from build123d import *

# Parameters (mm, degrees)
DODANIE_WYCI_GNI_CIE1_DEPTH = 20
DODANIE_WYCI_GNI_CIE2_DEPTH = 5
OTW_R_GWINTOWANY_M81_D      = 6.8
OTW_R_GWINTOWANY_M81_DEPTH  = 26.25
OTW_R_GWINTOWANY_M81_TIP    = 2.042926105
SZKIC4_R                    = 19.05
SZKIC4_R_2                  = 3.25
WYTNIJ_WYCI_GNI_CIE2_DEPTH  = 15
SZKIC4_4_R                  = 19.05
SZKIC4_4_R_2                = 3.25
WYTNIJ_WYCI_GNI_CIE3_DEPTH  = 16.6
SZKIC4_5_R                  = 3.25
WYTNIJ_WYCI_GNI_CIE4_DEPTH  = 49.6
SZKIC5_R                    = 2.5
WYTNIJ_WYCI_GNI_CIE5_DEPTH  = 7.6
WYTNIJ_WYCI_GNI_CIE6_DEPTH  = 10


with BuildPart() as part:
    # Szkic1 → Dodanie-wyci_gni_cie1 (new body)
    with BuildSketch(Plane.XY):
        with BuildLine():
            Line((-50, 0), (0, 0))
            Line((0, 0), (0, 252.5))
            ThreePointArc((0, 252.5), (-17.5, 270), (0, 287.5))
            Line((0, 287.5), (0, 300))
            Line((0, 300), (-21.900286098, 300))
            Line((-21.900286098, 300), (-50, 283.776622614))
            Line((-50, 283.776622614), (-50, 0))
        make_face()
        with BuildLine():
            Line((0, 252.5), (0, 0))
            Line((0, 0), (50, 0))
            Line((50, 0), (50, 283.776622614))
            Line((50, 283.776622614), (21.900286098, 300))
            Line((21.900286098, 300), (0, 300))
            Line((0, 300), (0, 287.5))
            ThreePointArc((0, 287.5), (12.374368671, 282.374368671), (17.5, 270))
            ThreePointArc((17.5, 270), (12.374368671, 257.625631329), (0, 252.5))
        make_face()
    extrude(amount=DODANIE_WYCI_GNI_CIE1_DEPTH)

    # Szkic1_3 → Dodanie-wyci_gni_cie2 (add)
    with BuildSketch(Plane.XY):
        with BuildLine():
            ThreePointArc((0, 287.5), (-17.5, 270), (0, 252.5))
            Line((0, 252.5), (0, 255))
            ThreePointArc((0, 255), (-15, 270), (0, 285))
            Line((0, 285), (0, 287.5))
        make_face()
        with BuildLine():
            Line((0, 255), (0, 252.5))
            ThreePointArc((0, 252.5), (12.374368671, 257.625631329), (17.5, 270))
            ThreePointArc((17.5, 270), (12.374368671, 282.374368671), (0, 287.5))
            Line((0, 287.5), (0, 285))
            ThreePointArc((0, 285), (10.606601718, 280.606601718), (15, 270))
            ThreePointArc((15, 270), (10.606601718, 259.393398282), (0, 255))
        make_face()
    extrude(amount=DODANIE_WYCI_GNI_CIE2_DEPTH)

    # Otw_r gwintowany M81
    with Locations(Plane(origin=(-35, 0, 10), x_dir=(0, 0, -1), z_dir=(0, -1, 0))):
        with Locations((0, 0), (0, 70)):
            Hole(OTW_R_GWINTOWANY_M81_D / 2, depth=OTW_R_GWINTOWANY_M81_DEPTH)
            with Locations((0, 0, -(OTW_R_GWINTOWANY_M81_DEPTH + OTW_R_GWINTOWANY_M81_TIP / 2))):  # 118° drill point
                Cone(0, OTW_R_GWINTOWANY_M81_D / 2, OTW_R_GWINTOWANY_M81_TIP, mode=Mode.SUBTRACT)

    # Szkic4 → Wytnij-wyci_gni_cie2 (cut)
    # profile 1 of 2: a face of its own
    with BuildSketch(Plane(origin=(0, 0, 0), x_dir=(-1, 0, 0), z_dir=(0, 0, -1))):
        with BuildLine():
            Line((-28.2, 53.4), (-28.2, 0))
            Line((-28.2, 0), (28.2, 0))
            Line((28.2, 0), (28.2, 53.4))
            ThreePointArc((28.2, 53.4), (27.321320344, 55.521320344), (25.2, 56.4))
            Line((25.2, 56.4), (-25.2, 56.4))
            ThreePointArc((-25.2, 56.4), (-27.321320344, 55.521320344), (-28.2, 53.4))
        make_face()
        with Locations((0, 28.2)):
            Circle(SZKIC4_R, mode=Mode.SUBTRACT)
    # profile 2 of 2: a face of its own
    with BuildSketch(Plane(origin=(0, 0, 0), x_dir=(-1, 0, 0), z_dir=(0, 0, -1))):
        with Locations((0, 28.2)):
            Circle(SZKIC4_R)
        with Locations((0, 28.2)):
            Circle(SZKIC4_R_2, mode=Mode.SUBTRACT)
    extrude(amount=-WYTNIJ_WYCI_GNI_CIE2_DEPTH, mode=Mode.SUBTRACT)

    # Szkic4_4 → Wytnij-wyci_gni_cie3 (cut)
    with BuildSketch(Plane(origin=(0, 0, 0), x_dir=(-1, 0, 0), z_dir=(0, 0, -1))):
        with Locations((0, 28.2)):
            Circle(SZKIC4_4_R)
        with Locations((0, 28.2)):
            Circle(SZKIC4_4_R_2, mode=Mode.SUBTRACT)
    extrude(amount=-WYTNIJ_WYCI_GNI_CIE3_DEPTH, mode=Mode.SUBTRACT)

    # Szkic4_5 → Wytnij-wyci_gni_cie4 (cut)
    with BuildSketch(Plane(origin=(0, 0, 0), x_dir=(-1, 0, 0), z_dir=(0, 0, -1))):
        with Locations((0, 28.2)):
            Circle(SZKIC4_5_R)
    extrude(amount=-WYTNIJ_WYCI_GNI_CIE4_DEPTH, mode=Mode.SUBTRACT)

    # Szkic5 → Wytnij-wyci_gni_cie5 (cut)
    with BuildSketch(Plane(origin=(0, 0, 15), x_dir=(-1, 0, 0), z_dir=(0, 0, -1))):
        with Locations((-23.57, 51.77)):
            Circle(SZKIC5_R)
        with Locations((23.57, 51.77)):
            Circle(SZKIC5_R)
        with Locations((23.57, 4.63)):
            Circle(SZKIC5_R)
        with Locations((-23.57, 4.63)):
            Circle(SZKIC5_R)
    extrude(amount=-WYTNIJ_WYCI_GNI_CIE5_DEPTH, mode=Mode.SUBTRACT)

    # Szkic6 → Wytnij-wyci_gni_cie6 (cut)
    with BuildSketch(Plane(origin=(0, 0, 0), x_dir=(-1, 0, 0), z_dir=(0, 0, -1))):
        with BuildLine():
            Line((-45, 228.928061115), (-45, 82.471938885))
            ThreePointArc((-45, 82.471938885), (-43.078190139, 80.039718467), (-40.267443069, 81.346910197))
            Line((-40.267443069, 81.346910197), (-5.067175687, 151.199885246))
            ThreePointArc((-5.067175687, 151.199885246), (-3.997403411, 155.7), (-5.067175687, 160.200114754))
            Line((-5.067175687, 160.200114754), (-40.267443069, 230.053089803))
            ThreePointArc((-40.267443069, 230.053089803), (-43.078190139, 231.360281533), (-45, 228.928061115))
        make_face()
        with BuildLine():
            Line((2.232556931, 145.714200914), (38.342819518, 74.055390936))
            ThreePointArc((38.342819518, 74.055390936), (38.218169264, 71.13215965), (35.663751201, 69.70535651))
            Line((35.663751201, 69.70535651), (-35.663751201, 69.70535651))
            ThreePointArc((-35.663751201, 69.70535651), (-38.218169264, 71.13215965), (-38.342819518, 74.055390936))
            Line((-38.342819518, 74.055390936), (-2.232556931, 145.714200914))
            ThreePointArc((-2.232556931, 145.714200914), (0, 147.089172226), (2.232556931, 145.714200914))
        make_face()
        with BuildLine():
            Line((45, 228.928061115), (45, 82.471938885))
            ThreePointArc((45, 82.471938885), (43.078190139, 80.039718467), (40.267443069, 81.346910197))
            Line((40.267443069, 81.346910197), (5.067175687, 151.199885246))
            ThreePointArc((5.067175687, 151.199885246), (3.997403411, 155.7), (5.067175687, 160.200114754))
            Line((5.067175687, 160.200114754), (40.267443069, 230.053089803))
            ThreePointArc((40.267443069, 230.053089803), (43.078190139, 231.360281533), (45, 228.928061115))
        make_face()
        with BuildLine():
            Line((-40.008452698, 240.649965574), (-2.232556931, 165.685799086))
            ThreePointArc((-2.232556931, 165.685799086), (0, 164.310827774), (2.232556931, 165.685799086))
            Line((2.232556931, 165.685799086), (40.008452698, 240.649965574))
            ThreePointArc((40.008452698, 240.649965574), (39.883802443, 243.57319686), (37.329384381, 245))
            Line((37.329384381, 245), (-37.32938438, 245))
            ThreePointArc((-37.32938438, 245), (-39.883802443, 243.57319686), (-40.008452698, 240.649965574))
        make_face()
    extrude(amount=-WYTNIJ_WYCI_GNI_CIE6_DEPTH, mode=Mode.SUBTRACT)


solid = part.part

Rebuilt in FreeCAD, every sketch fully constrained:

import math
import FreeCAD as App
import Part
import Sketcher
from FreeCAD import Vector
Q = App.Units.Quantity


def add_polygon(sketch, points):
    """Adds a closed chain of lines whose ends are joined by coincident constraints."""
    first, n = sketch.GeometryCount, len(points)
    for a, b in zip(points, points[1:] + points[:1]):
        sketch.addGeometry(Part.LineSegment(App.Vector(*a, 0), App.Vector(*b, 0)), False)
    for i in range(n):
        sketch.addConstraint(Sketcher.Constraint("Coincident", first + i, 2, first + (i + 1) % n, 1))

doc = App.newDocument("Part")
body = doc.addObject("PartDesign::Body", "Body")

# Sketch on XY plane
sketch1 = body.newObject("Sketcher::SketchObject", "Sketch")
sketch1.AttachmentSupport = (doc.getObject("XY_Plane"), [""])
sketch1.MapMode = "FlatFace"
add_polygon(sketch1, [(-50, 0), (50, 0), (50, 284), (22, 300), (-22, 300), (-50, 284)])  # lines 0-5
sketch1.addGeometry(Part.ArcOfCircle(Part.Circle(Vector(0, 270, 0), Vector(0, 0, 1), 18), math.radians(90), math.radians(270)), False)  # 6
sketch1.addGeometry(Part.ArcOfCircle(Part.Circle(Vector(0, 270, 0), Vector(0, 0, 1), 17), math.radians(0), math.radians(90)), False)  # 7
sketch1.addGeometry(Part.ArcOfCircle(Part.Circle(Vector(0, 270, 0), Vector(0, 0, 1), 17), math.radians(-90), math.radians(0)), False)  # 8
sketch1.addConstraint([
    Sketcher.Constraint("Tangent", 6, 1, 7, 2),
    Sketcher.Constraint("Tangent", 7, 1, 8, 2),
    Sketcher.Constraint("Tangent", 8, 1, 6, 2),
    Sketcher.Constraint("Horizontal", 0),
    Sketcher.Constraint("Vertical", 1),
    Sketcher.Constraint("Horizontal", 3),
    Sketcher.Constraint("Vertical", 5),
    Sketcher.Constraint("Symmetric", 0, 2, 5, 2, -1, 1),
    Sketcher.Constraint("PointOnObject", 6, 3, -2),
    Sketcher.Constraint("PointOnObject", 6, 1, -2),
    Sketcher.Constraint("PointOnObject", 8, 1, -2),
    Sketcher.Constraint("Horizontal", 1, 2, 4, 2),
    Sketcher.Constraint("Horizontal", 8, 3, 7, 1),
    Sketcher.Constraint("Equal", 2, 4),
    Sketcher.Constraint("Radius", 6, Q("17.5 mm")),
    Sketcher.Constraint("DistanceX", 0, 1, 0, 2, Q("100 mm")),
    Sketcher.Constraint("Angle", 2, Q("150 deg")),
    Sketcher.Constraint("DistanceY", -1, 1, 6, 3, Q("270 mm")),
    Sketcher.Constraint("DistanceY", -1, 1, 2, 2, Q("300 mm")),
    Sketcher.Constraint("DistanceX", 3, 2, 3, 1, Q("43.800572 mm")),
])
pad1 = body.newObject("PartDesign::Pad", "Pad")
pad1.Profile = sketch1
pad1.Length = 20

# Sketch on XY plane
sketch2 = body.newObject("Sketcher::SketchObject", "Sketch001")
sketch2.AttachmentSupport = (doc.getObject("XY_Plane"), [""])
sketch2.MapMode = "FlatFace"
sketch2.addGeometry([
    Part.ArcOfCircle(Part.Circle(Vector(0, 270, 0), Vector(0, 0, 1), 18), math.radians(90), math.radians(270)),  # 0
    Part.ArcOfCircle(Part.Circle(Vector(0, 270, 0), Vector(0, 0, 1), 17), math.radians(-90), math.radians(0)),  # 1
    Part.ArcOfCircle(Part.Circle(Vector(0, 270, 0), Vector(0, 0, 1), 17), math.radians(0), math.radians(90)),  # 2
    Part.ArcOfCircle(Part.Circle(Vector(0, 270, 0), Vector(0, 0, 1), 15), math.radians(90), math.radians(270)),  # 3
    Part.ArcOfCircle(Part.Circle(Vector(0, 270, 0), Vector(0, 0, 1), 15), math.radians(0), math.radians(90)),  # 4
    Part.ArcOfCircle(Part.Circle(Vector(0, 270, 0), Vector(0, 0, 1), 15), math.radians(-90), math.radians(0)),  # 5
], False)
sketch2.addConstraint([
    Sketcher.Constraint("Tangent", 0, 2, 1, 1),
    Sketcher.Constraint("Tangent", 1, 2, 2, 1),
    Sketcher.Constraint("Tangent", 2, 2, 0, 1),
    Sketcher.Constraint("Tangent", 3, 1, 4, 2),
    Sketcher.Constraint("Tangent", 4, 1, 5, 2),
    Sketcher.Constraint("Tangent", 5, 1, 3, 2),
    Sketcher.Constraint("Coincident", 3, 3, 0, 3),
    Sketcher.Constraint("PointOnObject", 0, 3, -2),
    Sketcher.Constraint("PointOnObject", 0, 2, -2),
    Sketcher.Constraint("PointOnObject", 2, 2, -2),
    Sketcher.Constraint("PointOnObject", 3, 1, -2),
    Sketcher.Constraint("PointOnObject", 5, 1, -2),
    Sketcher.Constraint("Horizontal", 5, 3, 1, 2),
    Sketcher.Constraint("Horizontal", 1, 2, 4, 1),
    Sketcher.Constraint("Radius", 3, Q("15 mm")),
    Sketcher.Constraint("Radius", 0, Q("17.5 mm")),
    Sketcher.Constraint("DistanceY", -1, 1, 0, 3, Q("270 mm")),
])
pad2 = body.newObject("PartDesign::Pad", "Pad001")
pad2.Profile = sketch2
pad2.Length = 5

# Sketch on XZ plane
sketch3 = body.newObject("Sketcher::SketchObject", "Sketch002")
sketch3.AttachmentSupport = (doc.getObject("XZ_Plane"), [""])
sketch3.MapMode = "FlatFace"
sketch3.addGeometry([
    Part.Circle(Vector(-35, 10, 0), Vector(0, 0, 1), 3.4),
    Part.Circle(Vector(35, 10, 0), Vector(0, 0, 1), 3.4),
], False)
sketch3.addConstraint([
    Sketcher.Constraint("Equal", 0, 1),
    Sketcher.Constraint("Symmetric", 0, 3, 1, 3, -2),
    Sketcher.Constraint("Diameter", 0, Q("6.8 mm")),
    Sketcher.Constraint("DistanceX", 0, 3, -1, 1, Q("35 mm")),
    Sketcher.Constraint("DistanceY", -1, 1, 0, 3, Q("10 mm")),
])
doc.recompute()
hole = body.newObject("PartDesign::Hole", "Hole")
hole.Profile = sketch3
hole.ThreadType = "None"
hole.Diameter = 6.8
hole.DepthType = "Dimension"
hole.Depth = 26.25
hole.DrillPoint = "Angled"
hole.DrillPointAngle = 118

# Sketch on XY plane
sketch4 = body.newObject("Sketcher::SketchObject", "Sketch003")
sketch4.AttachmentSupport = (doc.getObject("XY_Plane"), [""])
sketch4.MapMode = "FlatFace"
sketch4.addGeometry([
    Part.LineSegment(Vector(28.2, 53.4, 0), Vector(28.2, 0, 0)),  # 0
    Part.LineSegment(Vector(28.2, 0, 0), Vector(-28.2, 0, 0)),  # 1
    Part.LineSegment(Vector(-28.2, 0, 0), Vector(-28.2, 53.4, 0)),  # 2
    Part.ArcOfCircle(Part.Circle(Vector(-25.2, 53.4, 0), Vector(0, 0, 1), 3), math.radians(90), math.radians(180)),  # 3
    Part.LineSegment(Vector(-25.2, 56.4, 0), Vector(25.2, 56.4, 0)),  # 4
    Part.ArcOfCircle(Part.Circle(Vector(25.2, 53.4, 0), Vector(0, 0, 1), 3), math.radians(0), math.radians(90)),  # 5
    Part.Circle(Vector(0, 28.2, 0), Vector(0, 0, 1), 3.2),  # 6
], False)
sketch4.addConstraint([
    Sketcher.Constraint("Coincident", 0, 2, 1, 1),
    Sketcher.Constraint("Coincident", 1, 2, 2, 1),
    Sketcher.Constraint("Tangent", 2, 2, 3, 2),
    Sketcher.Constraint("Tangent", 3, 1, 4, 1),
    Sketcher.Constraint("Tangent", 4, 2, 5, 2),
    Sketcher.Constraint("Tangent", 5, 1, 0, 1),
    Sketcher.Constraint("Vertical", 0),
    Sketcher.Constraint("Horizontal", 1),
    Sketcher.Constraint("Vertical", 2),
    Sketcher.Constraint("Horizontal", 4),
    Sketcher.Constraint("Equal", 3, 5),
    Sketcher.Constraint("Symmetric", 0, 2, 1, 2, -1, 1),
    Sketcher.Constraint("PointOnObject", 6, 3, -2),
    Sketcher.Constraint("Radius", 3, Q("3 mm")),
    Sketcher.Constraint("Diameter", 6, Q("6.5 mm")),
    Sketcher.Constraint("DistanceX", 1, 2, 1, 1, Q("56.4 mm")),
    Sketcher.Constraint("DistanceY", 0, 2, 0, 1, Q("53.4 mm")),
    Sketcher.Constraint("DistanceY", -1, 1, 6, 3, Q("28.2 mm")),
])
pocket1 = body.newObject("PartDesign::Pocket", "Pocket")
pocket1.Profile = sketch4
pocket1.Length = 15
pocket1.Reversed = True

# Sketch on XY plane
sketch5 = body.newObject("Sketcher::SketchObject", "Sketch004")
sketch5.AttachmentSupport = (doc.getObject("XY_Plane"), [""])
sketch5.MapMode = "FlatFace"
sketch5.addGeometry([
    Part.Circle(Vector(0, 28.2, 0), Vector(0, 0, 1), 19.1),
    Part.Circle(Vector(0, 28.2, 0), Vector(0, 0, 1), 3.2),
], False)
sketch5.addConstraint([
    Sketcher.Constraint("Coincident", 1, 3, 0, 3),
    Sketcher.Constraint("PointOnObject", 0, 3, -2),
    Sketcher.Constraint("Diameter", 0, Q("38.1 mm")),
    Sketcher.Constraint("Diameter", 1, Q("6.5 mm")),
    Sketcher.Constraint("DistanceY", -1, 1, 0, 3, Q("28.2 mm")),
])
pocket2 = body.newObject("PartDesign::Pocket", "Pocket001")
pocket2.Profile = sketch5
pocket2.Length = 16.6
pocket2.Reversed = True

# Sketch on XY plane
sketch6 = body.newObject("Sketcher::SketchObject", "Sketch005")
sketch6.AttachmentSupport = (doc.getObject("XY_Plane"), [""])
sketch6.MapMode = "FlatFace"
sketch6.addGeometry(Part.Circle(Vector(0, 28.2, 0), Vector(0, 0, 1), 3.2), False)
sketch6.addConstraint([
    Sketcher.Constraint("PointOnObject", 0, 3, -2),
    Sketcher.Constraint("Diameter", 0, Q("6.5 mm")),
    Sketcher.Constraint("DistanceY", -1, 1, 0, 3, Q("28.2 mm")),
])
pocket3 = body.newObject("PartDesign::Pocket", "Pocket002")
pocket3.Profile = sketch6
pocket3.Length = 49.6
pocket3.Reversed = True

# Sketch on XY plane
sketch7 = body.newObject("Sketcher::SketchObject", "Sketch006")
sketch7.AttachmentSupport = (doc.getObject("XY_Plane"), [""])
sketch7.MapMode = "FlatFace"
sketch7.AttachmentOffset = App.Placement(Vector(0, 0, 15), App.Rotation())
sketch7.addGeometry([
    Part.Circle(Vector(23.6, 51.8, 0), Vector(0, 0, 1), 2.5),
    Part.Circle(Vector(-23.6, 51.8, 0), Vector(0, 0, 1), 2.5),
    Part.Circle(Vector(-23.6, 4.6, 0), Vector(0, 0, 1), 2.5),
    Part.Circle(Vector(23.6, 4.6, 0), Vector(0, 0, 1), 2.5),
], False)
sketch7.addConstraint([
    Sketcher.Constraint("Equal", 0, 1),
    Sketcher.Constraint("Equal", 1, 2),
    Sketcher.Constraint("Equal", 2, 3),
    Sketcher.Constraint("Symmetric", 0, 3, 1, 3, -2),
    Sketcher.Constraint("Symmetric", 2, 3, 3, 3, -2),
    Sketcher.Constraint("Vertical", 1, 3, 2, 3),
    Sketcher.Constraint("Diameter", 0, Q("5 mm")),
    Sketcher.Constraint("DistanceX", -1, 1, 0, 3, Q("23.57 mm")),
    Sketcher.Constraint("DistanceY", -1, 1, 0, 3, Q("51.77 mm")),
    Sketcher.Constraint("DistanceY", -1, 1, 2, 3, Q("4.63 mm")),
])
pocket4 = body.newObject("PartDesign::Pocket", "Pocket003")
pocket4.Profile = sketch7
pocket4.Length = 7.6
pocket4.Reversed = True

# Sketch on XY plane
sketch8 = body.newObject("Sketcher::SketchObject", "Sketch007")
sketch8.AttachmentSupport = (doc.getObject("XY_Plane"), [""])
sketch8.MapMode = "FlatFace"
sketch8.addGeometry([
    Part.LineSegment(Vector(45, 228.9, 0), Vector(45, 82.5, 0)),  # 0
    Part.ArcOfCircle(Part.Circle(Vector(42.5, 82.5, 0), Vector(0, 0, 1), 2.5), math.radians(-153), math.radians(0)),  # 1
    Part.LineSegment(Vector(40.3, 81.3, 0), Vector(5.1, 151.2, 0)),  # 2
    Part.ArcOfCircle(Part.Circle(Vector(14, 155.7, 0), Vector(0, 0, 1), 10), math.radians(153), math.radians(207)),  # 3
    Part.LineSegment(Vector(5.1, 160.2, 0), Vector(40.3, 230.1, 0)),  # 4
    Part.ArcOfCircle(Part.Circle(Vector(42.5, 228.9, 0), Vector(0, 0, 1), 2.5), math.radians(0), math.radians(153)),  # 5
    Part.LineSegment(Vector(-38.3, 74.1, 0), Vector(-2.2, 145.7, 0)),  # 6
    Part.ArcOfCircle(Part.Circle(Vector(0, 144.6, 0), Vector(0, 0, 1), 2.5), math.radians(27), math.radians(153)),  # 7
    Part.LineSegment(Vector(2.2, 145.7, 0), Vector(38.3, 74.1, 0)),  # 8
    Part.ArcOfCircle(Part.Circle(Vector(35.7, 72.7, 0), Vector(0, 0, 1), 3), math.radians(-90), math.radians(27)),  # 9
    Part.LineSegment(Vector(35.7, 69.7, 0), Vector(-35.7, 69.7, 0)),  # 10
    Part.ArcOfCircle(Part.Circle(Vector(-35.7, 72.7, 0), Vector(0, 0, 1), 3), math.radians(153), math.radians(270)),  # 11
    Part.LineSegment(Vector(-45, 82.5, 0), Vector(-45, 228.9, 0)),  # 12
    Part.ArcOfCircle(Part.Circle(Vector(-42.5, 228.9, 0), Vector(0, 0, 1), 2.5), math.radians(27), math.radians(180)),  # 13
    Part.LineSegment(Vector(-40.3, 230.1, 0), Vector(-5.1, 160.2, 0)),  # 14
    Part.ArcOfCircle(Part.Circle(Vector(-14, 155.7, 0), Vector(0, 0, 1), 10), math.radians(-27), math.radians(27)),  # 15
    Part.LineSegment(Vector(-5.1, 151.2, 0), Vector(-40.3, 81.3, 0)),  # 16
    Part.ArcOfCircle(Part.Circle(Vector(-42.5, 82.5, 0), Vector(0, 0, 1), 2.5), math.radians(180), math.radians(333)),  # 17
    Part.LineSegment(Vector(40, 240.6, 0), Vector(2.2, 165.7, 0)),  # 18
    Part.ArcOfCircle(Part.Circle(Vector(0, 166.8, 0), Vector(0, 0, 1), 2.5), math.radians(-153), math.radians(-27)),  # 19
    Part.LineSegment(Vector(-2.2, 165.7, 0), Vector(-40, 240.6, 0)),  # 20
    Part.ArcOfCircle(Part.Circle(Vector(-37.3, 242, 0), Vector(0, 0, 1), 3), math.radians(90), math.radians(207)),  # 21
    Part.LineSegment(Vector(-37.3, 245, 0), Vector(37.3, 245, 0)),  # 22
    Part.ArcOfCircle(Part.Circle(Vector(37.3, 242, 0), Vector(0, 0, 1), 3), math.radians(-27), math.radians(90)),  # 23
], False)
sketch8.addConstraint([
    Sketcher.Constraint("Tangent", 0, 2, 1, 2),
    Sketcher.Constraint("Tangent", 1, 1, 2, 1),
    Sketcher.Constraint("Tangent", 2, 2, 3, 2),
    Sketcher.Constraint("Tangent", 3, 1, 4, 1),
    Sketcher.Constraint("Tangent", 4, 2, 5, 2),
    Sketcher.Constraint("Tangent", 5, 1, 0, 1),
    Sketcher.Constraint("Tangent", 6, 2, 7, 2),
    Sketcher.Constraint("Tangent", 7, 1, 8, 1),
    Sketcher.Constraint("Tangent", 8, 2, 9, 2),
    Sketcher.Constraint("Tangent", 9, 1, 10, 1),
    Sketcher.Constraint("Tangent", 10, 2, 11, 2),
    Sketcher.Constraint("Tangent", 11, 1, 6, 1),
    Sketcher.Constraint("Tangent", 12, 2, 13, 2),
    Sketcher.Constraint("Tangent", 13, 1, 14, 1),
    Sketcher.Constraint("Tangent", 14, 2, 15, 2),
    Sketcher.Constraint("Tangent", 15, 1, 16, 1),
    Sketcher.Constraint("Tangent", 16, 2, 17, 2),
    Sketcher.Constraint("Tangent", 17, 1, 12, 1),
    Sketcher.Constraint("Tangent", 18, 2, 19, 2),
    Sketcher.Constraint("Tangent", 19, 1, 20, 1),
    Sketcher.Constraint("Tangent", 20, 2, 21, 2),
    Sketcher.Constraint("Tangent", 21, 1, 22, 1),
    Sketcher.Constraint("Tangent", 22, 2, 23, 2),
    Sketcher.Constraint("Tangent", 23, 1, 18, 1),
    Sketcher.Constraint("Vertical", 0),
    Sketcher.Constraint("Horizontal", 10),
    Sketcher.Constraint("Vertical", 12),
    Sketcher.Constraint("Horizontal", 22),
    Sketcher.Constraint("Equal", 1, 5),
    Sketcher.Constraint("Equal", 5, 7),
    Sketcher.Constraint("Equal", 9, 11),
    Sketcher.Constraint("Equal", 7, 13),
    Sketcher.Constraint("Equal", 3, 15),
    Sketcher.Constraint("Equal", 13, 17),
    Sketcher.Constraint("Equal", 17, 19),
    Sketcher.Constraint("Equal", 11, 21),
    Sketcher.Constraint("Equal", 21, 23),
    Sketcher.Constraint("Symmetric", 5, 3, 13, 3, -2),
    Sketcher.Constraint("Symmetric", 3, 3, 15, 3, -2),
    Sketcher.Constraint("Symmetric", 6, 2, 7, 1, -2),
    Sketcher.Constraint("Symmetric", 18, 2, 19, 1, -2),
    Sketcher.Constraint("Parallel", 4, 6),
    Sketcher.Constraint("Parallel", 2, 8),
    Sketcher.Constraint("Parallel", 6, 16),
    Sketcher.Constraint("Parallel", 16, 18),
    Sketcher.Constraint("Radius", 3, Q("10 mm")),
    Sketcher.Constraint("Radius", 9, Q("3 mm")),
    Sketcher.Constraint("Radius", 1, Q("2.5 mm")),
    Sketcher.Constraint("DistanceY", -1, 1, 21, 3, Q("242 mm")),
    Sketcher.Constraint("DistanceX", -1, 1, 0, 2, Q("45 mm")),
    Sketcher.Constraint("DistanceY", -1, 1, 3, 3, Q("155.7 mm")),
    Sketcher.Constraint("DistanceX", 22, 1, 22, 2, Q("74.658769 mm")),
    Sketcher.Constraint("DistanceY", -1, 1, 6, 2, Q("145.714201 mm")),
    Sketcher.Constraint("DistanceY", -1, 1, 18, 2, Q("165.685799 mm")),
    Sketcher.Constraint("Distance", 2, Q("78.220822 mm")),
    Sketcher.Constraint("Distance", 6, Q("80.242982 mm")),
])
pocket5 = body.newObject("PartDesign::Pocket", "Pocket004")
pocket5.Profile = sketch8
pocket5.Length = 10
pocket5.Reversed = True

doc.recompute()
